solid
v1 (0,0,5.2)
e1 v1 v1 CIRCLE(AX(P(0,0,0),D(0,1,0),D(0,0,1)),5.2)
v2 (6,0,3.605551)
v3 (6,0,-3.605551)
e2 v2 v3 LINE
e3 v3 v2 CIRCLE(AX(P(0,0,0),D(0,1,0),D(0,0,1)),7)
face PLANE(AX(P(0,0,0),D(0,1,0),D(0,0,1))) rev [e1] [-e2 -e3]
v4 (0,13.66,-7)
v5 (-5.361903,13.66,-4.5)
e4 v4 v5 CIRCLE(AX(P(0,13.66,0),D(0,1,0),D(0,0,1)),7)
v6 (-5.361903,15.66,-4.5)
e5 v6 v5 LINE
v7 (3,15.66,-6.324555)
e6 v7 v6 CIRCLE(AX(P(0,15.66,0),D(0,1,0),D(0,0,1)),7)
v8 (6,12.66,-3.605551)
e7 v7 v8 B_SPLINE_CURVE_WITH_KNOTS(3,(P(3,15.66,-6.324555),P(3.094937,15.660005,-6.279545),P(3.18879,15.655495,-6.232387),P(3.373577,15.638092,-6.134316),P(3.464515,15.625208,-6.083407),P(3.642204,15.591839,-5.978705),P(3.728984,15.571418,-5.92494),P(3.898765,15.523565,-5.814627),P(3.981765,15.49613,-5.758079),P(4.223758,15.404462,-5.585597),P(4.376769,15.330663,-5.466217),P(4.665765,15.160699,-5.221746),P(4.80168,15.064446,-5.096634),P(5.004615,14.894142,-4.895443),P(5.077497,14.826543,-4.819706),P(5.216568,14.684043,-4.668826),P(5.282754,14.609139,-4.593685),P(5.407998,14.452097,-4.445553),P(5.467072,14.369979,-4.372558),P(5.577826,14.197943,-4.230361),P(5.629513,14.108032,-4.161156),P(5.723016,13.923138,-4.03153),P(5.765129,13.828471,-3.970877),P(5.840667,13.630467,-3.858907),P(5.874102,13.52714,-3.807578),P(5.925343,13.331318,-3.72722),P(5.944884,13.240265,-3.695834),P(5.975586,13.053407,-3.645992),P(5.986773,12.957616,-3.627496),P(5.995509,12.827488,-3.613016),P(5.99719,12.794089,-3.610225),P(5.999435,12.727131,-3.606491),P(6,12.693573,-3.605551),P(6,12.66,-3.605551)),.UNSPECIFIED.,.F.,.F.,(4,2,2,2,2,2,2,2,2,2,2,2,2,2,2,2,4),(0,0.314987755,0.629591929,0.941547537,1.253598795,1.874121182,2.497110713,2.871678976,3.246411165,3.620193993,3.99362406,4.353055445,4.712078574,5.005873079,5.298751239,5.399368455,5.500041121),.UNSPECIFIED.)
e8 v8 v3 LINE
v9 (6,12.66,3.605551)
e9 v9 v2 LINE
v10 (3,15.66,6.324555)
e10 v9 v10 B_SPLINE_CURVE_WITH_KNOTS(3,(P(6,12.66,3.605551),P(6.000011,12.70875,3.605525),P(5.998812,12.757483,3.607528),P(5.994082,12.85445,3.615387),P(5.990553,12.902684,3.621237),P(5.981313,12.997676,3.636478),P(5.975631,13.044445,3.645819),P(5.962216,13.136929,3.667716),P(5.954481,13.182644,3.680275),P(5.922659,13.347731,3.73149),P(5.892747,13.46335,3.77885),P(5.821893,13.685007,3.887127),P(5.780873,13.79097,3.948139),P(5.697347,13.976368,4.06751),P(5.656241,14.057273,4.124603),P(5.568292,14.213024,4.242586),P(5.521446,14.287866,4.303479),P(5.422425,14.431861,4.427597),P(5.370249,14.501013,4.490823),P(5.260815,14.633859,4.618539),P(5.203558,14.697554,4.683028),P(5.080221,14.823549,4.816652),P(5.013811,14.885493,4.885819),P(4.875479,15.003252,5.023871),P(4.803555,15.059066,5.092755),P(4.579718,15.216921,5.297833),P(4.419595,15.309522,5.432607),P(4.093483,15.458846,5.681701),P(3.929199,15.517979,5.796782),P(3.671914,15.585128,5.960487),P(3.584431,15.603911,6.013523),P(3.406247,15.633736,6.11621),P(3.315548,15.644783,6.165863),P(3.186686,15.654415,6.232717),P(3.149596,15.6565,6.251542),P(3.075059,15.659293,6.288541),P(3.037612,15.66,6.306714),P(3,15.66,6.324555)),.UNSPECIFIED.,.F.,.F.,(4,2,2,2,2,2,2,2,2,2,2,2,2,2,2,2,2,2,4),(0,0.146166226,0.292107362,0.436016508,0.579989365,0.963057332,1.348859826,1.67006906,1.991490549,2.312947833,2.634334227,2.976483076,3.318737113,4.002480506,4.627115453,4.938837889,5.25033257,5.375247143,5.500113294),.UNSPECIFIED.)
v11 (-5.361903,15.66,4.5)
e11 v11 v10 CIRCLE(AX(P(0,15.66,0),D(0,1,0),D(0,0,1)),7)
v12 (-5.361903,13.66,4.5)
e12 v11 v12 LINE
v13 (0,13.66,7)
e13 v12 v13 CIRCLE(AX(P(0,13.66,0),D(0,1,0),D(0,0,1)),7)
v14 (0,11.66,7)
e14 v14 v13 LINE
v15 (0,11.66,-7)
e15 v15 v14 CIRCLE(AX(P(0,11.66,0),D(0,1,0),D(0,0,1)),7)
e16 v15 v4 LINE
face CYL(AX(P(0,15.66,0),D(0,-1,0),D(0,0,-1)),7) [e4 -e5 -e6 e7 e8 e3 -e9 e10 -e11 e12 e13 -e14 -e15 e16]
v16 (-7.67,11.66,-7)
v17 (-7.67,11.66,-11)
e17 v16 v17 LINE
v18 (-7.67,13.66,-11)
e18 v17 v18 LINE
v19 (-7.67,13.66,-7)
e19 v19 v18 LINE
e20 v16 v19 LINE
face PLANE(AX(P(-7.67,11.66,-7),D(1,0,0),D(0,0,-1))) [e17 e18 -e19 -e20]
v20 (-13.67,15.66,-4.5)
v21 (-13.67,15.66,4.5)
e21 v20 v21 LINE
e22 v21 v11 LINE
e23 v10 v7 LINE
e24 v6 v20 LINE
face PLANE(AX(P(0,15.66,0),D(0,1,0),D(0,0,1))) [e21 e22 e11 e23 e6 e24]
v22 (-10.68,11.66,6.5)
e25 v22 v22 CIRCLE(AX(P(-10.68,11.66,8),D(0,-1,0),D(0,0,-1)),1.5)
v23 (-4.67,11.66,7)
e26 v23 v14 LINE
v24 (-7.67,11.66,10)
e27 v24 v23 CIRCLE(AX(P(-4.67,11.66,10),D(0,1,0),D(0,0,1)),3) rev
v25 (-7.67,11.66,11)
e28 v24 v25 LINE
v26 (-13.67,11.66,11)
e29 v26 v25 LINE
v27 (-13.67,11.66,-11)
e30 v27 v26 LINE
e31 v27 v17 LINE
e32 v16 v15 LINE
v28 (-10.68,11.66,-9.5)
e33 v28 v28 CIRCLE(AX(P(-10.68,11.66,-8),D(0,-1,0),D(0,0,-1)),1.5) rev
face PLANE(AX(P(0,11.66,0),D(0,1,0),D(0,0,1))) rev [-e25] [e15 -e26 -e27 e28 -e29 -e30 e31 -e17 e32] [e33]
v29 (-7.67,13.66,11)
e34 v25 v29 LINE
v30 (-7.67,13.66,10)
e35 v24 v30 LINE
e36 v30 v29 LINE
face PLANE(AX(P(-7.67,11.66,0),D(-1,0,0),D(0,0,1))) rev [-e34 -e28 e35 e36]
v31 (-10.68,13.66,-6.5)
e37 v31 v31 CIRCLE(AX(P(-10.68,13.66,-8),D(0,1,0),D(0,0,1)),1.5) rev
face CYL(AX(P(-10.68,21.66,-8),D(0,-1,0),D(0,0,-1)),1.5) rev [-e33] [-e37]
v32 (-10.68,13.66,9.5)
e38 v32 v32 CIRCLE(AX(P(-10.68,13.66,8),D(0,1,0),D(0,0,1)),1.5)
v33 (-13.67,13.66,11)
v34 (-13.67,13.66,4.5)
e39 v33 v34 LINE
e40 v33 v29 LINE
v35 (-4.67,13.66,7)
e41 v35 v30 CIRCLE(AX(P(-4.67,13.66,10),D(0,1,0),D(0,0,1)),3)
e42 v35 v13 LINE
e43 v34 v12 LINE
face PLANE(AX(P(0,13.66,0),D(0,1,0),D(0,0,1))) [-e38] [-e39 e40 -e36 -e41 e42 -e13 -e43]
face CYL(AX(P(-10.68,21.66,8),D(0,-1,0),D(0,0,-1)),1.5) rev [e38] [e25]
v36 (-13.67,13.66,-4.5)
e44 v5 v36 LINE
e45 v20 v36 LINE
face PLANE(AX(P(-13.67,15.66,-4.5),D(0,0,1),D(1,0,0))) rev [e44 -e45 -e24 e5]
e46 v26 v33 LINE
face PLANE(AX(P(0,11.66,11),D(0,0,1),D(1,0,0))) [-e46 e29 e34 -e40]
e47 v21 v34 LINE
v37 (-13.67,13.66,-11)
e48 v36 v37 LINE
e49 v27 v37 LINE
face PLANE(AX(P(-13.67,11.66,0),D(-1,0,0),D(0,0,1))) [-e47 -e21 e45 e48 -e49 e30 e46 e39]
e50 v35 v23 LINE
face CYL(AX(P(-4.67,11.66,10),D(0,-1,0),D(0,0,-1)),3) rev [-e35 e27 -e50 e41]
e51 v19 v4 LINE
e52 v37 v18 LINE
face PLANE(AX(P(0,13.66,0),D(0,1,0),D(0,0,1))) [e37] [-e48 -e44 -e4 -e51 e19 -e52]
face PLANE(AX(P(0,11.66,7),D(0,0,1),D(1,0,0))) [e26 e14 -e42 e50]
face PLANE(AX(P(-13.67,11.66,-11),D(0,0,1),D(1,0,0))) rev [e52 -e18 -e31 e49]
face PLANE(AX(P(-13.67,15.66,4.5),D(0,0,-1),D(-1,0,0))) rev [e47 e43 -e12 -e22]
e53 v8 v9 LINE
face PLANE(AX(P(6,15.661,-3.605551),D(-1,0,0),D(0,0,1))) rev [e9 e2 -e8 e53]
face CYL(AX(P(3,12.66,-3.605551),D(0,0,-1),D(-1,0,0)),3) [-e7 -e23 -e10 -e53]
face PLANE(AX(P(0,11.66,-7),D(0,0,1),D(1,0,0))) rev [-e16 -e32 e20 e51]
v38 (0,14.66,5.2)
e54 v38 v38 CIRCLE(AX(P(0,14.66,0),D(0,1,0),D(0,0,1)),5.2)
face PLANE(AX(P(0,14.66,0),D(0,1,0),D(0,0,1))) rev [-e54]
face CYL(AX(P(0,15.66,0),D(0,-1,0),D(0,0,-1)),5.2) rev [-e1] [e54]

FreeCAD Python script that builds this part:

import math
import FreeCAD as App
import Part
import Sketcher


def edges_at(feature, points):
    """Names of the edges that pass closest to the given points."""
    edges = feature.Shape.Edges
    near = lambda p: min(range(len(edges)), key=lambda i: edges[i].distToShape(Part.Vertex(*p))[0])
    return sorted({f"Edge{near(p) + 1}" for p in points})


def add_polygon(sketch, points):
    """Adds a closed chain of lines whose ends are joined by coincident constraints."""
    first, n = sketch.GeometryCount, len(points)
    for a, b in zip(points, points[1:] + points[:1]):
        sketch.addGeometry(Part.LineSegment(App.Vector(*a, 0), App.Vector(*b, 0)), False)
    for i in range(n):
        sketch.addConstraint(Sketcher.Constraint("Coincident", first + i, 2, first + (i + 1) % n, 1))

doc = App.newDocument("Part")
body = doc.addObject("PartDesign::Body", "Body")

sketch1 = body.newObject("Sketcher::SketchObject", "Sketch")
sketch1.AttachmentSupport = (doc.getObject("XZ_Plane"), [""])
sketch1.MapMode = "FlatFace"
sketch1.addGeometry(Part.Circle(App.Vector(0, 0, 0), App.Vector(0, 0, 1), 7), False)
sketch1.addGeometry(Part.Circle(App.Vector(0, 0, 0), App.Vector(0, 0, 1), 5), False)
sketch1.addConstraint(Sketcher.Constraint("Coincident", 0, 3, -1, 1))
sketch1.addConstraint(Sketcher.Constraint("Coincident", 1, 3, -1, 1))
sketch1.addConstraint(Sketcher.Constraint("Diameter", 0, 14.0))
sketch1.addConstraint(Sketcher.Constraint("Diameter", 1, 10.4))
pad1 = body.newObject("PartDesign::Pad", "Pad")
pad1.Profile = sketch1
pad1.Length = 15.66
pad1.Reversed = True

sketch2 = body.newObject("Sketcher::SketchObject", "Sketch001")
sketch2.AttachmentSupport = (doc.getObject("XZ_Plane"), [""])
sketch2.MapMode = "FlatFace"
sketch2.AttachmentOffset = App.Placement(App.Vector(0, 0, -11.66), App.Rotation())
sketch2.addGeometry(Part.LineSegment(App.Vector(-13.7, 11, 0), App.Vector(-7.7, 11, 0)), False)
sketch2.addGeometry(Part.LineSegment(App.Vector(-7.7, 11, 0), App.Vector(-7.7, 7, 0)), False)
sketch2.addGeometry(Part.LineSegment(App.Vector(-7.7, 7, 0), App.Vector(0, 7, 0)), False)
sketch2.addGeometry(Part.ArcOfCircle(Part.Circle(App.Vector(0, 0, 0), App.Vector(0, 0, 1), 7), math.radians(90), math.radians(270)), False)
sketch2.addGeometry(Part.LineSegment(App.Vector(0, -7, 0), App.Vector(-7.7, -7, 0)), False)
sketch2.addGeometry(Part.LineSegment(App.Vector(-7.7, -7, 0), App.Vector(-7.7, -11, 0)), False)
sketch2.addGeometry(Part.LineSegment(App.Vector(-7.7, -11, 0), App.Vector(-13.7, -11, 0)), False)
sketch2.addGeometry(Part.LineSegment(App.Vector(-13.7, -11, 0), App.Vector(-13.7, 11, 0)), False)
sketch2.addConstraint(Sketcher.Constraint("Coincident", 0, 2, 1, 1))
sketch2.addConstraint(Sketcher.Constraint("Coincident", 1, 2, 2, 1))
sketch2.addConstraint(Sketcher.Constraint("Tangent", 2, 2, 3, 1))
sketch2.addConstraint(Sketcher.Constraint("Tangent", 3, 2, 4, 1))
sketch2.addConstraint(Sketcher.Constraint("Coincident", 4, 2, 5, 1))
sketch2.addConstraint(Sketcher.Constraint("Coincident", 5, 2, 6, 1))
sketch2.addConstraint(Sketcher.Constraint("Coincident", 6, 2, 7, 1))
sketch2.addConstraint(Sketcher.Constraint("Coincident", 7, 2, 0, 1))
sketch2.addConstraint(Sketcher.Constraint("Horizontal", 0))
sketch2.addConstraint(Sketcher.Constraint("Vertical", 1))
sketch2.addConstraint(Sketcher.Constraint("Horizontal", 2))
sketch2.addConstraint(Sketcher.Constraint("Horizontal", 4))
sketch2.addConstraint(Sketcher.Constraint("Vertical", 5))
sketch2.addConstraint(Sketcher.Constraint("Horizontal", 6))
sketch2.addConstraint(Sketcher.Constraint("Vertical", 7))
sketch2.addConstraint(Sketcher.Constraint("Coincident", 3, 3, -1, 1))
sketch2.addConstraint(Sketcher.Constraint("Symmetric", 0, 2, 5, 2, -1))
sketch2.addConstraint(Sketcher.Constraint("Radius", 3, 7.0))
sketch2.addConstraint(Sketcher.Constraint("DistanceX", 0, 1, 0, 2, 6.0))
sketch2.addConstraint(Sketcher.Constraint("DistanceY", 1, 2, 1, 1, 4.0))
sketch2.addConstraint(Sketcher.Constraint("DistanceX", 2, 1, 2, 2, 7.67))
pad2 = body.newObject("PartDesign::Pad", "Pad001")
pad2.Profile = sketch2
pad2.Length = 4
pad2.Reversed = True

sketch3 = body.newObject("Sketcher::SketchObject", "Sketch002")
sketch3.AttachmentSupport = (doc.getObject("XZ_Plane"), [""])
sketch3.MapMode = "FlatFace"
sketch3.AttachmentOffset = App.Placement(App.Vector(0, 0, -13.66), App.Rotation())
sketch3.addGeometry(Part.ArcOfCircle(Part.Circle(App.Vector(0, 0, 0), App.Vector(0, 0, 1), 7), math.radians(90), math.radians(270)), False)
sketch3.addGeometry(Part.LineSegment(App.Vector(0, -7, 0), App.Vector(-7.7, -7, 0)), False)
sketch3.addGeometry(Part.LineSegment(App.Vector(-7.7, -7, 0), App.Vector(-13.7, -7, 0)), False)
sketch3.addGeometry(Part.LineSegment(App.Vector(-13.7, -7, 0), App.Vector(-13.7, 7, 0)), False)
sketch3.addGeometry(Part.LineSegment(App.Vector(-13.7, 7, 0), App.Vector(-7.7, 7, 0)), False)
sketch3.addGeometry(Part.LineSegment(App.Vector(-7.7, 7, 0), App.Vector(0, 7, 0)), False)
add_polygon(sketch3, [(-13.7, -11), (-13.7, -7), (-7.7, -7), (-7.7, -11)])
add_polygon(sketch3, [(-13.7, 7), (-13.7, 11), (-7.7, 11), (-7.7, 7)])
sketch3.addConstraint(Sketcher.Constraint("Tangent", 0, 2, 1, 1))
sketch3.addConstraint(Sketcher.Constraint("Coincident", 1, 2, 2, 1))
sketch3.addConstraint(Sketcher.Constraint("Coincident", 2, 2, 3, 1))
sketch3.addConstraint(Sketcher.Constraint("Coincident", 3, 2, 4, 1))
sketch3.addConstraint(Sketcher.Constraint("Coincident", 4, 2, 5, 1))
sketch3.addConstraint(Sketcher.Constraint("Tangent", 5, 2, 0, 1))
sketch3.addConstraint(Sketcher.Constraint("Horizontal", 1))
sketch3.addConstraint(Sketcher.Constraint("Horizontal", 2))
sketch3.addConstraint(Sketcher.Constraint("Vertical", 3))
sketch3.addConstraint(Sketcher.Constraint("Horizontal", 4))
sketch3.addConstraint(Sketcher.Constraint("Horizontal", 5))
sketch3.addConstraint(Sketcher.Constraint("Vertical", 6))
sketch3.addConstraint(Sketcher.Constraint("Horizontal", 7))
sketch3.addConstraint(Sketcher.Constraint("Vertical", 8))
sketch3.addConstraint(Sketcher.Constraint("Horizontal", 9))
sketch3.addConstraint(Sketcher.Constraint("Vertical", 10))
sketch3.addConstraint(Sketcher.Constraint("Horizontal", 11))
sketch3.addConstraint(Sketcher.Constraint("Vertical", 12))
sketch3.addConstraint(Sketcher.Constraint("Horizontal", 13))
sketch3.addConstraint(Sketcher.Constraint("Coincident", 0, 3, -1, 1))
sketch3.addConstraint(Sketcher.Constraint("Coincident", 6, 2, 2, 2))
sketch3.addConstraint(Sketcher.Constraint("Coincident", 12, 2, 4, 2))
sketch3.addConstraint(Sketcher.Constraint("Symmetric", 9, 2, 10, 2, -1))
sketch3.addConstraint(Sketcher.Constraint("Vertical", 1, 2, 4, 2))
sketch3.addConstraint(Sketcher.Constraint("Vertical", 4, 2, 7, 2))
sketch3.addConstraint(Sketcher.Constraint("Radius", 0, 7.0))
sketch3.addConstraint(Sketcher.Constraint("DistanceX", 2, 2, 2, 1, 6.0))
sketch3.addConstraint(Sketcher.Constraint("DistanceY", 6, 1, 6, 2, 4.0))
sketch3.addConstraint(Sketcher.Constraint("DistanceX", 1, 2, 1, 1, 7.67))
pocket1 = body.newObject("PartDesign::Pocket", "Pocket")
pocket1.Profile = sketch3
pocket1.Length = 2

sketch4 = body.newObject("Sketcher::SketchObject", "Sketch003")
sketch4.AttachmentSupport = (doc.getObject("XZ_Plane"), [""])
sketch4.MapMode = "FlatFace"
sketch4.AttachmentOffset = App.Placement(App.Vector(0, 0, -11.66), App.Rotation())
sketch4.addGeometry(Part.Circle(App.Vector(-10.7, -8, 0), App.Vector(0, 0, 1), 1.5), False)
sketch4.addGeometry(Part.Circle(App.Vector(-10.7, 8, 0), App.Vector(0, 0, 1), 1.5), False)
sketch4.addConstraint(Sketcher.Constraint("Equal", 0, 1))
sketch4.addConstraint(Sketcher.Constraint("Symmetric", 0, 3, 1, 3, -1))
sketch4.addConstraint(Sketcher.Constraint("Diameter", 0, 3.0))
sketch4.addConstraint(Sketcher.Constraint("DistanceY", 0, 3, -1, 1, 8.0))
sketch4.addConstraint(Sketcher.Constraint("DistanceX", 0, 3, -1, 1, 10.68))
pocket2 = body.newObject("PartDesign::Pocket", "Pocket001")
pocket2.Profile = sketch4
pocket2.Length = 10
doc.recompute()

fillet = body.newObject("PartDesign::Fillet", "Fillet")
fillet.Base = (pocket2, edges_at(pocket2, [(-7.67, 12.66, 7)]))
fillet.Radius = 3

sketch5 = body.newObject("Sketcher::SketchObject", "Sketch004")
sketch5.AttachmentSupport = (doc.getObject("XZ_Plane"), [""])
sketch5.MapMode = "FlatFace"
sketch5.AttachmentOffset = App.Placement(App.Vector(0, 0, -14.66), App.Rotation())
sketch5.addGeometry(Part.Circle(App.Vector(0, 0, 0), App.Vector(0, 0, 1), 5), False)
sketch5.addConstraint(Sketcher.Constraint("Coincident", 0, 3, -1, 1))
sketch5.addConstraint(Sketcher.Constraint("Diameter", 0, 10.4))
pad3 = body.newObject("PartDesign::Pad", "Pad002")
pad3.Profile = sketch5
pad3.Length = 1
pad3.Reversed = True

sketch6 = body.newObject("Sketcher::SketchObject", "Sketch005")
sketch6.AttachmentSupport = (doc.getObject("XZ_Plane"), [""])
sketch6.MapMode = "FlatFace"
sketch6.addGeometry(Part.LineSegment(App.Vector(6, 4, 0), App.Vector(6, -4, 0)), False)
sketch6.addGeometry(Part.ArcOfCircle(Part.Circle(App.Vector(0, 0, 0), App.Vector(0, 0, 1), 7), math.radians(-31), math.radians(31)), False)
sketch6.addConstraint(Sketcher.Constraint("Coincident", 0, 1, 1, 2))
sketch6.addConstraint(Sketcher.Constraint("Coincident", 1, 1, 0, 2))
sketch6.addConstraint(Sketcher.Constraint("Vertical", 0))
sketch6.addConstraint(Sketcher.Constraint("Coincident", 1, 3, -1, 1))
sketch6.addConstraint(Sketcher.Constraint("Radius", 1, 7.0))
sketch6.addConstraint(Sketcher.Constraint("DistanceX", -1, 1, 0, 1, 6.0))
pocket3 = body.newObject("PartDesign::Pocket", "Pocket002")
pocket3.Profile = sketch6
pocket3.Length = 15.66
doc.recompute()

fillet2 = body.newObject("PartDesign::Fillet", "Fillet001")
fillet2.Base = (pocket3, edges_at(pocket3, [(6, 15.66, 0)]))
fillet2.Radius = 3

sketch7 = body.newObject("Sketcher::SketchObject", "Sketch006")
sketch7.AttachmentSupport = (doc.getObject("XZ_Plane"), [""])
sketch7.MapMode = "FlatFace"
sketch7.AttachmentOffset = App.Placement(App.Vector(0, 0, -13.66), App.Rotation())
sketch7.addGeometry(Part.LineSegment(App.Vector(-14, -4, 0), App.Vector(-14, 4, 0)), False)
sketch7.addGeometry(Part.LineSegment(App.Vector(-14, 4, 0), App.Vector(-5, 4, 0)), False)
sketch7.addGeometry(Part.ArcOfCircle(Part.Circle(App.Vector(0, 0, 0), App.Vector(0, 0, 1), 7), math.radians(140), math.radians(220)), False)
sketch7.addGeometry(Part.LineSegment(App.Vector(-5, -4, 0), App.Vector(-14, -4, 0)), False)
sketch7.addConstraint(Sketcher.Constraint("Coincident", 0, 2, 1, 1))
sketch7.addConstraint(Sketcher.Constraint("Coincident", 1, 2, 2, 1))
sketch7.addConstraint(Sketcher.Constraint("Coincident", 2, 2, 3, 1))
sketch7.addConstraint(Sketcher.Constraint("Coincident", 3, 2, 0, 1))
sketch7.addConstraint(Sketcher.Constraint("Vertical", 0))
sketch7.addConstraint(Sketcher.Constraint("Horizontal", 1))
sketch7.addConstraint(Sketcher.Constraint("Horizontal", 3))
sketch7.addConstraint(Sketcher.Constraint("Coincident", 2, 3, -1, 1))
sketch7.addConstraint(Sketcher.Constraint("Vertical", 1, 2, 2, 2))
sketch7.addConstraint(Sketcher.Constraint("Radius", 2, 7.0))
sketch7.addConstraint(Sketcher.Constraint("DistanceY", 0, 1, 0, 2, 9.0))
sketch7.addConstraint(Sketcher.Constraint("DistanceX", 0, 2, -1, 1, 13.67))
pad4 = body.newObject("PartDesign::Pad", "Pad003")
pad4.Profile = sketch7
pad4.Length = 2
pad4.Reversed = True

doc.recompute()
